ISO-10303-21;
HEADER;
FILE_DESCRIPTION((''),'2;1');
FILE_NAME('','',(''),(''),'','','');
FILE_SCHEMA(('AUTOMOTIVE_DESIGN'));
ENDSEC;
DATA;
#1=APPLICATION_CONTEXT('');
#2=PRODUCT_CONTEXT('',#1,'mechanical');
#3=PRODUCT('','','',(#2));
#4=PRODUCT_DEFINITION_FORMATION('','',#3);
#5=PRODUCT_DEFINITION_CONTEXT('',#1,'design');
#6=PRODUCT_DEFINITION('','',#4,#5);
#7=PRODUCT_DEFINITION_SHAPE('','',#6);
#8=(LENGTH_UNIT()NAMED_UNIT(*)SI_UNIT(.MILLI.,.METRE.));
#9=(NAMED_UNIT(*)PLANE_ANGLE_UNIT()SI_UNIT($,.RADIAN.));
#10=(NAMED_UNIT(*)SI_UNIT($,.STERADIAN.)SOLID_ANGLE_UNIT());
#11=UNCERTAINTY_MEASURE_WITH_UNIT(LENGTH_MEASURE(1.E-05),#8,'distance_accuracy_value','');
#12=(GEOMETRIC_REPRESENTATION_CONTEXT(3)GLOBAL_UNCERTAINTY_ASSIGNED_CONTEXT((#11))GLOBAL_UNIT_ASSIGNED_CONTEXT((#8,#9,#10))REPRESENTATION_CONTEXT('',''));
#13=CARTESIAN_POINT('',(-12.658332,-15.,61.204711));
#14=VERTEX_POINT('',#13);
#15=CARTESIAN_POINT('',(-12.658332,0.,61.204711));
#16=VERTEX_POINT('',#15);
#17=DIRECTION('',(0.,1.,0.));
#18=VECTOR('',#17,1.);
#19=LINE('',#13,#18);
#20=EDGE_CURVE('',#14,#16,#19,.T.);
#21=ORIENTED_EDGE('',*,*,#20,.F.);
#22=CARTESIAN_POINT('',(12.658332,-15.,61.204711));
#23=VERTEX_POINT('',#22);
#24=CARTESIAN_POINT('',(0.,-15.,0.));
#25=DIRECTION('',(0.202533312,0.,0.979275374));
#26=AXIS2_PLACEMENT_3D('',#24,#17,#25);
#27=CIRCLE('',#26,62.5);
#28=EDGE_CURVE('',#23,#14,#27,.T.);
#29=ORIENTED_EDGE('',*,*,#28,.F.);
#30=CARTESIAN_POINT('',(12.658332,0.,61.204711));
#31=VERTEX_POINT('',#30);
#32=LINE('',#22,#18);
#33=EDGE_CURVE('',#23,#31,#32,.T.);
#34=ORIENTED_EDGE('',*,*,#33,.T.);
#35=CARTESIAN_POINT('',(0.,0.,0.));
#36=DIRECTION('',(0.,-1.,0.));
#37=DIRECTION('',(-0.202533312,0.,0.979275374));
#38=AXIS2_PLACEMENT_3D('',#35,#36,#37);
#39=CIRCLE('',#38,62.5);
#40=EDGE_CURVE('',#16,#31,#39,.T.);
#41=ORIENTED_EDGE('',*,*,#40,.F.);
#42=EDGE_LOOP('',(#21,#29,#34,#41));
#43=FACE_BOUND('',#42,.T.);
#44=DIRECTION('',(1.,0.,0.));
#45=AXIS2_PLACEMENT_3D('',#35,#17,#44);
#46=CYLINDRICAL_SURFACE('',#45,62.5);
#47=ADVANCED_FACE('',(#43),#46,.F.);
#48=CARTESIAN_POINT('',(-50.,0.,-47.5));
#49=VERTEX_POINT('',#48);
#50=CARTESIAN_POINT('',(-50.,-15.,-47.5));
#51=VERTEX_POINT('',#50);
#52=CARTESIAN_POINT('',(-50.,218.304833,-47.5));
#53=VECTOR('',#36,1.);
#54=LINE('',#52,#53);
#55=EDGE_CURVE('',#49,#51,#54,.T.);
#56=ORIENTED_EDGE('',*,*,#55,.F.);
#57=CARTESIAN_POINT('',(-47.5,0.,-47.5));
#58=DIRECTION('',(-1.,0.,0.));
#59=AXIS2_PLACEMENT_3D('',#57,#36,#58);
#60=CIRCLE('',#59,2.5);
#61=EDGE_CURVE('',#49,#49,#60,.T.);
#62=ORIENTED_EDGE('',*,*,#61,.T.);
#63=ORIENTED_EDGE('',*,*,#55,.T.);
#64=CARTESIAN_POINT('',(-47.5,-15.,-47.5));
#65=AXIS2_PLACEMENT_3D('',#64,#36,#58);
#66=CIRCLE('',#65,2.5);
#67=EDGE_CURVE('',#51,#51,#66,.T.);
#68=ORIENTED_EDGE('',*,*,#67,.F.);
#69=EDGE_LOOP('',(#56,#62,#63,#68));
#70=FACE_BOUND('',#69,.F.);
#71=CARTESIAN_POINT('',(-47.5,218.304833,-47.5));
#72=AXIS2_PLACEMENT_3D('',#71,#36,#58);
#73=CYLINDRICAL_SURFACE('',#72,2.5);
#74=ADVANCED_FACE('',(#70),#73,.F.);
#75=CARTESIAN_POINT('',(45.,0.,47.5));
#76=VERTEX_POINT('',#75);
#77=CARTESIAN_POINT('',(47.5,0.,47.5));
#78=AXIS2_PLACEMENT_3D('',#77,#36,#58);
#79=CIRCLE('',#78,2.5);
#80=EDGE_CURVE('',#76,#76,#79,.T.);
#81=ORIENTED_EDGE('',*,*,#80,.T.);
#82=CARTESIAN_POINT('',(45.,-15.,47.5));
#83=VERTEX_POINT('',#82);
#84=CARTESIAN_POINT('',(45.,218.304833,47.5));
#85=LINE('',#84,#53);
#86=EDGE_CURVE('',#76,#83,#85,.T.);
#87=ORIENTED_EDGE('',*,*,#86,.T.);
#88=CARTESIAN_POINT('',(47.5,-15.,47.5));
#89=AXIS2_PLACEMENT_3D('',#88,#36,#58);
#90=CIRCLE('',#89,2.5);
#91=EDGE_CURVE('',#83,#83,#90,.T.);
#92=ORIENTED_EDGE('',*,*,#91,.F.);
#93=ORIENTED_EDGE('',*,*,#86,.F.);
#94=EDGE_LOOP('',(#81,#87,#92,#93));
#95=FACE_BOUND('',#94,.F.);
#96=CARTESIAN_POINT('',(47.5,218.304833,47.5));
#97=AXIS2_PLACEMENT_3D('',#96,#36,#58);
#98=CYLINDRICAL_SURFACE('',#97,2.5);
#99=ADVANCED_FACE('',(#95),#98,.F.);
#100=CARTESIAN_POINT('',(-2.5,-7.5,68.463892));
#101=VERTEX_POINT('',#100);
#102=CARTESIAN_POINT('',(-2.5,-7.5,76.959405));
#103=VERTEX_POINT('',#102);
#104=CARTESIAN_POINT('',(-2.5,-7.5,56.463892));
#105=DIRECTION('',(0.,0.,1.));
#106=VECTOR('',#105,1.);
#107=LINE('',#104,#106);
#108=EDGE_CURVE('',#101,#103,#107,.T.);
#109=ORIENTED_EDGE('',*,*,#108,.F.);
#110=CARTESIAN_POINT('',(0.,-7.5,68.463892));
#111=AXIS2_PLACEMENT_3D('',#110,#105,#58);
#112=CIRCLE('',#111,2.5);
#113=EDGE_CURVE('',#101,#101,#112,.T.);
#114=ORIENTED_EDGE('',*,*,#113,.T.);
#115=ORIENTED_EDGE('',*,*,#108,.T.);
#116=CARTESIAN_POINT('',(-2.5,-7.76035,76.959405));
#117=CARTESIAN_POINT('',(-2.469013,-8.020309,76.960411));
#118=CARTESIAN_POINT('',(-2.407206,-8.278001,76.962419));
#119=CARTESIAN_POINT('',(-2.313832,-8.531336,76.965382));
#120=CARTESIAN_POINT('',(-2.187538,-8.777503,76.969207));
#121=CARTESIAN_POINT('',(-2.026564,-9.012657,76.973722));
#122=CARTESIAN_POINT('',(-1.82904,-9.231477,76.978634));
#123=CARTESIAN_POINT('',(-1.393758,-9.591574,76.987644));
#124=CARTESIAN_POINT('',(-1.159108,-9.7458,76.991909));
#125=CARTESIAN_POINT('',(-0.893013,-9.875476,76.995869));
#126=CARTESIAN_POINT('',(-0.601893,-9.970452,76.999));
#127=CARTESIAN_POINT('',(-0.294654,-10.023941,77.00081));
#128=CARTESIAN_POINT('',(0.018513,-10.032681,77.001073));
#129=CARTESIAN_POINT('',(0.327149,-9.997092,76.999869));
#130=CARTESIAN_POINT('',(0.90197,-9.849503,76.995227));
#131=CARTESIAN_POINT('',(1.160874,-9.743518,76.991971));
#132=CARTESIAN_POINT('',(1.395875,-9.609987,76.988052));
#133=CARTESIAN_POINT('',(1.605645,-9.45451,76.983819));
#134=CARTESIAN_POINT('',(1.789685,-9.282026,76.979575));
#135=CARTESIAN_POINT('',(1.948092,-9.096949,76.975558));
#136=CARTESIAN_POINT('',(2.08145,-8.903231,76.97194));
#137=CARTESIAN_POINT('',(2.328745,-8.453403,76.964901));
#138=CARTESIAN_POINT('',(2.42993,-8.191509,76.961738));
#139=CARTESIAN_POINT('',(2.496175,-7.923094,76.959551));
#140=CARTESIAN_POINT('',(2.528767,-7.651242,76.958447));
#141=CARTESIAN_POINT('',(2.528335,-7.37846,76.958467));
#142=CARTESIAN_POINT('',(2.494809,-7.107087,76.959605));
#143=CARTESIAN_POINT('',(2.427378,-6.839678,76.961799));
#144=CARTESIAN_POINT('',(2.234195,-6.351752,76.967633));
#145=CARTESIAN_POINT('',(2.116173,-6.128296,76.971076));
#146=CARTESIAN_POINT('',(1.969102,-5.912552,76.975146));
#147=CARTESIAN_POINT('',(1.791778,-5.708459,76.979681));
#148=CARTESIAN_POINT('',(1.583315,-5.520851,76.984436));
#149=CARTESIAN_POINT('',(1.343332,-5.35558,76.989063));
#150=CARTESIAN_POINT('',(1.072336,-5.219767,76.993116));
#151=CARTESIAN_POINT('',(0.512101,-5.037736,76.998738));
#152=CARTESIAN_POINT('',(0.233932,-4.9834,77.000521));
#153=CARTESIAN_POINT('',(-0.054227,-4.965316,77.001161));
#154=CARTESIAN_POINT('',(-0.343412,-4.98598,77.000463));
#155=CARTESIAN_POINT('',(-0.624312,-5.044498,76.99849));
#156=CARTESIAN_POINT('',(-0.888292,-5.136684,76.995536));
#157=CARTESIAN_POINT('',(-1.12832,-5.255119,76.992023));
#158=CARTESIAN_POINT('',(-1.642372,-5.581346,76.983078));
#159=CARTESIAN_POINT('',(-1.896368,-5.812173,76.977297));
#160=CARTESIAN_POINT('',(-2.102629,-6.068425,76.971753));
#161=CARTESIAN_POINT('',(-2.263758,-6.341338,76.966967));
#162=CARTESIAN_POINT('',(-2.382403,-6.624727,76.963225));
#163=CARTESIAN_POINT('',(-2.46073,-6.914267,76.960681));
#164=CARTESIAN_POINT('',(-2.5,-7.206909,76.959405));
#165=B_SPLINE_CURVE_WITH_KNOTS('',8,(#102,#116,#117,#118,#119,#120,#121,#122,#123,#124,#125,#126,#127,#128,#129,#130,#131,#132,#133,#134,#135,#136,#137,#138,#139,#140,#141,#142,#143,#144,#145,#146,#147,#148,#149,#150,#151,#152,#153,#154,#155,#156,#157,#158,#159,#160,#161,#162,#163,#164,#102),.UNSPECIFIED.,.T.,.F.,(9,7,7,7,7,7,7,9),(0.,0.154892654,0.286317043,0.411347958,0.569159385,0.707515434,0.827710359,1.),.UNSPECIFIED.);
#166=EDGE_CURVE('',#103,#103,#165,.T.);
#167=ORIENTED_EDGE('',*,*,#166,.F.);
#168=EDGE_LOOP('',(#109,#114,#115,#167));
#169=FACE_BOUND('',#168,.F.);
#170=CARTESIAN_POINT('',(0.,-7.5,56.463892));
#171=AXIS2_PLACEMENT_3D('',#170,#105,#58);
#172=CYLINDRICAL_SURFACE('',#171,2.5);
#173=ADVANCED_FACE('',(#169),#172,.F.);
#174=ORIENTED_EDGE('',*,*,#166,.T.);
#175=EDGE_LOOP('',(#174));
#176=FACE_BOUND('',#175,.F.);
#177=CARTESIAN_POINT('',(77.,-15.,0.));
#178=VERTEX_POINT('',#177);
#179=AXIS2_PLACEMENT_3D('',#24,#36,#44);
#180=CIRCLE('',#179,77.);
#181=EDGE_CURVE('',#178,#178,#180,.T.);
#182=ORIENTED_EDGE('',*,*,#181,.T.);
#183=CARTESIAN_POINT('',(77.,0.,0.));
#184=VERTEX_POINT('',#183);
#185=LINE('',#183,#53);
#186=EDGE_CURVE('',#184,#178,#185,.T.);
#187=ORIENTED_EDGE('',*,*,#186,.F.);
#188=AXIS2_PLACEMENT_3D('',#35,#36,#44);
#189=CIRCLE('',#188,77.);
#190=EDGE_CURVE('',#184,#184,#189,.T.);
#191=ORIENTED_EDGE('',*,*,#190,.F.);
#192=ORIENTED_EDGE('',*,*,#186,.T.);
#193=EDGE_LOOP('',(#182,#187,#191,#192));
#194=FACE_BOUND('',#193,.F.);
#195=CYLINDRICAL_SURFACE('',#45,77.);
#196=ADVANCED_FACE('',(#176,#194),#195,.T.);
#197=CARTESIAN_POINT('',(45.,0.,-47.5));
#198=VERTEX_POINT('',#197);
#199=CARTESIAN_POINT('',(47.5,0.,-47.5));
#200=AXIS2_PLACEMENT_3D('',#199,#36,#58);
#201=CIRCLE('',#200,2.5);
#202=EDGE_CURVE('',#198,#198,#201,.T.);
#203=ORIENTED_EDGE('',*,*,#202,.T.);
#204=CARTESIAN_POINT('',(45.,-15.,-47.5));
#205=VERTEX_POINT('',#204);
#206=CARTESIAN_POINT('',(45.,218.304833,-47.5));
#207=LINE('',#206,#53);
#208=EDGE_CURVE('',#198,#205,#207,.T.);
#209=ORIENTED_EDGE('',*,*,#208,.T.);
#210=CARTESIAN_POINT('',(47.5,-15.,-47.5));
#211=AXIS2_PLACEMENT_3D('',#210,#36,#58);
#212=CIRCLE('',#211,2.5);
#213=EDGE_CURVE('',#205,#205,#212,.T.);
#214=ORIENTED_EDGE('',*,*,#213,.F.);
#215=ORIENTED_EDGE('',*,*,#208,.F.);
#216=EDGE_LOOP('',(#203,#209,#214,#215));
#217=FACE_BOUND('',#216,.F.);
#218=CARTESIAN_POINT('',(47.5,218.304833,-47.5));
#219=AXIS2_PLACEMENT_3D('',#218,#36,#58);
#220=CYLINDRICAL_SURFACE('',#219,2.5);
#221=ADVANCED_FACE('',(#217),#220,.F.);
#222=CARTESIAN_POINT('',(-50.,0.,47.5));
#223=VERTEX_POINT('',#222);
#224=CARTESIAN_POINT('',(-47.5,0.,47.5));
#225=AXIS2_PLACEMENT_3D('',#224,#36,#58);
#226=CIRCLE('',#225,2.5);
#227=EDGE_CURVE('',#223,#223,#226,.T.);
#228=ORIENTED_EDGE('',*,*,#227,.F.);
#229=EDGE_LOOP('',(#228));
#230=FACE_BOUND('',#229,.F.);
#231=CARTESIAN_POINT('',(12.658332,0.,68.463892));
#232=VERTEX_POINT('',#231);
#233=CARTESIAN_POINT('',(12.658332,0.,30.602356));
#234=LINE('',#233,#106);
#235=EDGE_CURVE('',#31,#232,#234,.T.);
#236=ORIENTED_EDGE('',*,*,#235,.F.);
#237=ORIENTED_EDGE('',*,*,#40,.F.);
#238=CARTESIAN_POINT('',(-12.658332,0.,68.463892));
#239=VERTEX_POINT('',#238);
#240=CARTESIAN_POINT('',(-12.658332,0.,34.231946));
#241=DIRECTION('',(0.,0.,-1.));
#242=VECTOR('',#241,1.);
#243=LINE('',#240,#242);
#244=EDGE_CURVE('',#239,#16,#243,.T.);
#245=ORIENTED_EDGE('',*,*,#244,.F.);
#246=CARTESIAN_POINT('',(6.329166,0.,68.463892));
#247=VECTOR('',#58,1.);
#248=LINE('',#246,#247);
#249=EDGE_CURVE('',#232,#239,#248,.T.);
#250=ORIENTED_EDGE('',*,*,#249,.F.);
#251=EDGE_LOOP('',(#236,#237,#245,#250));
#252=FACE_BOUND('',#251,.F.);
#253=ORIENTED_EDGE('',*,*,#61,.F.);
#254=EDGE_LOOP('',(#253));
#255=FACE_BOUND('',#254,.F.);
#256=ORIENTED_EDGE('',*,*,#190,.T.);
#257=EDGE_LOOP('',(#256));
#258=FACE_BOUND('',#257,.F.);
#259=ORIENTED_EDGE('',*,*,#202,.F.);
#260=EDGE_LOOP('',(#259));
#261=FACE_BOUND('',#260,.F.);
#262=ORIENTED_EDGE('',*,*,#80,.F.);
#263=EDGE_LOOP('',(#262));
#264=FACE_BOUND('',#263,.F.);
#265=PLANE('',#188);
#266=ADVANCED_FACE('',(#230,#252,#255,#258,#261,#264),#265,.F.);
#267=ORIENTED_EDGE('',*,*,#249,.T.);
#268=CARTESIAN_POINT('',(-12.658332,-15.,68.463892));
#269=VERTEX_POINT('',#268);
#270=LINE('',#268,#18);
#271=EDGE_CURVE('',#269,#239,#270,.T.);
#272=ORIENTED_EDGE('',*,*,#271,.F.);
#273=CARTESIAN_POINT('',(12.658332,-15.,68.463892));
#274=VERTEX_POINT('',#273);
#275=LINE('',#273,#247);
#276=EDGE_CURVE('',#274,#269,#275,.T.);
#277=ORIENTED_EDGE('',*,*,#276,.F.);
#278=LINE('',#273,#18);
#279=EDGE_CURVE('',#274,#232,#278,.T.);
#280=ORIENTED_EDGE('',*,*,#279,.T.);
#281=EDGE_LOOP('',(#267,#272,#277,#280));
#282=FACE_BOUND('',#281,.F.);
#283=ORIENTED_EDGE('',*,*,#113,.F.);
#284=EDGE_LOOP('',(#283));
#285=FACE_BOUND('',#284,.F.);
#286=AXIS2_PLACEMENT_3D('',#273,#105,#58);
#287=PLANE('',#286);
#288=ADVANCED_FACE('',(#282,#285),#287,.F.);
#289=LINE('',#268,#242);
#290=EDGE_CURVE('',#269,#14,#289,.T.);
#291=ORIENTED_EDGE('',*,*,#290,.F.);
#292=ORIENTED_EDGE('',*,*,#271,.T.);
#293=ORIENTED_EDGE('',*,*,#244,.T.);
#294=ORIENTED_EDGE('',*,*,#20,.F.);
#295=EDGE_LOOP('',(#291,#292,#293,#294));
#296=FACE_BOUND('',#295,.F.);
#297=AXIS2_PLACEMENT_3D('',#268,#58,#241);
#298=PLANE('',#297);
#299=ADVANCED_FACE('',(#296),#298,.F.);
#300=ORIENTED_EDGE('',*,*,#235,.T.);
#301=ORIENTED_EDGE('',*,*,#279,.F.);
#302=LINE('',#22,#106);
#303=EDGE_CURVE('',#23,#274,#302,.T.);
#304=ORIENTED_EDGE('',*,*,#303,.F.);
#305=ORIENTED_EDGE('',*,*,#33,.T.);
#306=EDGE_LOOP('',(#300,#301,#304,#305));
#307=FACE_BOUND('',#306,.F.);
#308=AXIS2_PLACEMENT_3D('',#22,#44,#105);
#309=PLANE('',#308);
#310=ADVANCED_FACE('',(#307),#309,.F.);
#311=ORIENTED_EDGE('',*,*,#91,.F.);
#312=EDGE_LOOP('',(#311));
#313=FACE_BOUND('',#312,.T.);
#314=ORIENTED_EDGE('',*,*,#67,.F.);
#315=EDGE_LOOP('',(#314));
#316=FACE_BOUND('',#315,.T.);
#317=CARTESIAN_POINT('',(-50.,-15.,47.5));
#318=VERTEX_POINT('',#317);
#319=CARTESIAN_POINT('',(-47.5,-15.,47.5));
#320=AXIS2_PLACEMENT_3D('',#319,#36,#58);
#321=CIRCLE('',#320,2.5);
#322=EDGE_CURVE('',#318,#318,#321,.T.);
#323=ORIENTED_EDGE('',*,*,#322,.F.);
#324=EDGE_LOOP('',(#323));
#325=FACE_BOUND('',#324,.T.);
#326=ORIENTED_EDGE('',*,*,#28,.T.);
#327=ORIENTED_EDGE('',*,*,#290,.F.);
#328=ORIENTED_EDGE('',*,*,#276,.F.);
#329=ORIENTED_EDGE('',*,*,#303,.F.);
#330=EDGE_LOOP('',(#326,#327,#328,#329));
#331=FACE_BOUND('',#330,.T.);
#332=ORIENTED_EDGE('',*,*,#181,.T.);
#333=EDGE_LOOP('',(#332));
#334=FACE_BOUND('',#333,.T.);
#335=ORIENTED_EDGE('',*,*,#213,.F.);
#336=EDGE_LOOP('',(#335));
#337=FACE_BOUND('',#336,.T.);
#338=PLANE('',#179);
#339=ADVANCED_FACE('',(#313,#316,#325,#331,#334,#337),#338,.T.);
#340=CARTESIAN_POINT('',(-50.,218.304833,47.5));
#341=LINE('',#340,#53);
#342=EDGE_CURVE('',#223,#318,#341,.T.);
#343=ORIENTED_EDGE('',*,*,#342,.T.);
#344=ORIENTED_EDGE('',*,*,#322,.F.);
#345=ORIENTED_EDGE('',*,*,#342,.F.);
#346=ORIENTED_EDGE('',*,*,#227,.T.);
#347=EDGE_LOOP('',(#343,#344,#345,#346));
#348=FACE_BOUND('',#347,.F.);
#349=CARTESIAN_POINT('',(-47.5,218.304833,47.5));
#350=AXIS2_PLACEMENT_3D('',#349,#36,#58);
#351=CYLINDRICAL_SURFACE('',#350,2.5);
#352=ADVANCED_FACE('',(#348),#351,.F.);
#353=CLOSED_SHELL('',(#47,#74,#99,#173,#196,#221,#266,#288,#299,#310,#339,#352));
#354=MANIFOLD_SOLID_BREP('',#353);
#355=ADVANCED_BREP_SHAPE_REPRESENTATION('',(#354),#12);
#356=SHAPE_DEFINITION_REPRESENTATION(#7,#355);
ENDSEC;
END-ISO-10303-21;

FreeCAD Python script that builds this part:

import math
import FreeCAD as App
import Part
import Sketcher
Q = App.Units.Quantity

doc = App.newDocument("Part")
params = doc.addObject("Spreadsheet::Sheet", "Params")
for row, (alias, value) in enumerate([
    ("sketch1_diameter", "154 mm"),
    ("sketch1_diameter2", "125 mm"),
    ("pad1_length", "15 mm"),
    ("sketch2_diameter", "5 mm"),
    ("hole_diameter", "5 mm"),
    ("pocket1_length", "25 mm"),
    ("sketch4_diameter", "5 mm"),
    ("hole2_diameter", "5 mm"),
    ("hole2_depth", "12 mm"),
], start=1):
    params.set(f"A{row}", alias)
    params.set(f"B{row}", "=" + value)
    params.setAlias(f"B{row}", alias)

body = doc.addObject("PartDesign::Body", "Body")

# Sketch on XZ plane
sketch1 = body.newObject("Sketcher::SketchObject", "Sketch")
sketch1.AttachmentSupport = (doc.getObject("XZ_Plane"), [""])
sketch1.MapMode = "FlatFace"
sketch1.addGeometry(Part.Circle(App.Vector(0, 0, 0), App.Vector(0, 0, 1), 77), False)
sketch1.addGeometry(Part.Circle(App.Vector(0, 0, 0), App.Vector(0, 0, 1), 62), False)
sketch1.addConstraint(Sketcher.Constraint("Coincident", 0, 3, -1, 1))
sketch1.addConstraint(Sketcher.Constraint("Coincident", 1, 3, -1, 1))
sketch1.addConstraint(Sketcher.Constraint("Diameter", 0, Q("154 mm")))
sketch1.addConstraint(Sketcher.Constraint("Diameter", 1, Q("125 mm")))
sketch1.setExpression("Constraints[2]", "Params.sketch1_diameter")
sketch1.setExpression("Constraints[3]", "Params.sketch1_diameter2")
pad1 = body.newObject("PartDesign::Pad", "Pad")
pad1.Profile = sketch1
pad1.setExpression("Length", "Params.pad1_length")

# Sketch on XZ plane
sketch2 = body.newObject("Sketcher::SketchObject", "Sketch001")
sketch2.AttachmentSupport = (doc.getObject("XZ_Plane"), [""])
sketch2.MapMode = "FlatFace"
sketch2.addGeometry(Part.Circle(App.Vector(-47.5, -47.5, 0), App.Vector(0, 0, 1), 2.5), False)
sketch2.addGeometry(Part.Circle(App.Vector(47.5, -47.5, 0), App.Vector(0, 0, 1), 2.5), False)
sketch2.addGeometry(Part.Circle(App.Vector(47.5, 47.5, 0), App.Vector(0, 0, 1), 2.5), False)
sketch2.addGeometry(Part.Circle(App.Vector(-47.5, 47.5, 0), App.Vector(0, 0, 1), 2.5), False)
sketch2.addConstraint(Sketcher.Constraint("Equal", 0, 1))
sketch2.addConstraint(Sketcher.Constraint("Equal", 1, 2))
sketch2.addConstraint(Sketcher.Constraint("Equal", 2, 3))
sketch2.addConstraint(Sketcher.Constraint("Symmetric", 0, 3, 2, 3, -1, 1))
sketch2.addConstraint(Sketcher.Constraint("Symmetric", 1, 3, 3, 3, -1, 1))
sketch2.addConstraint(Sketcher.Constraint("Symmetric", 0, 3, 1, 3, -2))
sketch2.addConstraint(Sketcher.Constraint("Diameter", 0, Q("5 mm")))
sketch2.addConstraint(Sketcher.Constraint("DistanceX", 0, 3, 1, 3, Q("95 mm")))
sketch2.addConstraint(Sketcher.Constraint("DistanceY", 1, 3, 2, 3, Q("95 mm")))
sketch2.setExpression("Constraints[6]", "Params.sketch2_diameter")
doc.recompute()
hole = body.newObject("PartDesign::Hole", "Hole")
hole.Profile = sketch2
hole.ThreadType = "None"
hole.setExpression("Diameter", "Params.hole_diameter")
hole.DepthType = "ThroughAll"
hole.Reversed = True

# Sketch on XZ plane
sketch3 = body.newObject("Sketcher::SketchObject", "Sketch002")
sketch3.AttachmentSupport = (doc.getObject("XZ_Plane"), [""])
sketch3.MapMode = "FlatFace"
sketch3.AttachmentOffset = App.Placement(App.Vector(0, 0, 15), App.Rotation())
sketch3.addGeometry(Part.LineSegment(App.Vector(13, 68, 0), App.Vector(-13, 68, 0)), False)
sketch3.addGeometry(Part.LineSegment(App.Vector(-13, 68, 0), App.Vector(-13, 61, 0)), False)
sketch3.addGeometry(Part.ArcOfCircle(Part.Circle(App.Vector(0, 0, 0), App.Vector(0, 0, 1), 63), math.radians(78), math.radians(102)), False)
sketch3.addGeometry(Part.LineSegment(App.Vector(13, 61, 0), App.Vector(13, 68, 0)), False)
sketch3.addConstraint(Sketcher.Constraint("Coincident", 0, 2, 1, 1))
sketch3.addConstraint(Sketcher.Constraint("Coincident", 1, 2, 2, 2))
sketch3.addConstraint(Sketcher.Constraint("Coincident", 2, 1, 3, 1))
sketch3.addConstraint(Sketcher.Constraint("Coincident", 3, 2, 0, 1))
sketch3.addConstraint(Sketcher.Constraint("Horizontal", 0))
sketch3.addConstraint(Sketcher.Constraint("Vertical", 1))
sketch3.addConstraint(Sketcher.Constraint("Vertical", 3))
sketch3.addConstraint(Sketcher.Constraint("Coincident", 2, 3, -1, 1))
sketch3.addConstraint(Sketcher.Constraint("Horizontal", 1, 2, 2, 1))
sketch3.addConstraint(Sketcher.Constraint("Radius", 2, Q("62.500007 mm")))
sketch3.addConstraint(Sketcher.Constraint("DistanceY", 1, 2, 1, 1, Q("7.259181 mm")))
sketch3.addConstraint(Sketcher.Constraint("DistanceY", 2, 3, 0, 2, Q("68.463899 mm")))
pocket1 = body.newObject("PartDesign::Pocket", "Pocket")
pocket1.Profile = sketch3
pocket1.setExpression("Length", "Params.pocket1_length")

# Sketch on XY plane
sketch4 = body.newObject("Sketcher::SketchObject", "Sketch003")
sketch4.AttachmentSupport = (doc.getObject("XY_Plane"), [""])
sketch4.MapMode = "FlatFace"
sketch4.AttachmentOffset = App.Placement(App.Vector(0, 0, 68.463892), App.Rotation())
sketch4.addGeometry(Part.Circle(App.Vector(0, -7.5, 0), App.Vector(0, 0, 1), 2.5), False)
sketch4.addConstraint(Sketcher.Constraint("PointOnObject", 0, 3, -2))
sketch4.addConstraint(Sketcher.Constraint("Diameter", 0, Q("5 mm")))
sketch4.addConstraint(Sketcher.Constraint("DistanceY", 0, 3, -1, 1, Q("7.5 mm")))
sketch4.setExpression("Constraints[1]", "Params.sketch4_diameter")
doc.recompute()
hole2 = body.newObject("PartDesign::Hole", "Hole001")
hole2.Profile = sketch4
hole2.ThreadType = "None"
hole2.setExpression("Diameter", "Params.hole2_diameter")
hole2.DepthType = "Dimension"
hole2.setExpression("Depth", "Params.hole2_depth")
hole2.DrillPoint = "Flat"
hole2.Reversed = True

doc.recompute()
